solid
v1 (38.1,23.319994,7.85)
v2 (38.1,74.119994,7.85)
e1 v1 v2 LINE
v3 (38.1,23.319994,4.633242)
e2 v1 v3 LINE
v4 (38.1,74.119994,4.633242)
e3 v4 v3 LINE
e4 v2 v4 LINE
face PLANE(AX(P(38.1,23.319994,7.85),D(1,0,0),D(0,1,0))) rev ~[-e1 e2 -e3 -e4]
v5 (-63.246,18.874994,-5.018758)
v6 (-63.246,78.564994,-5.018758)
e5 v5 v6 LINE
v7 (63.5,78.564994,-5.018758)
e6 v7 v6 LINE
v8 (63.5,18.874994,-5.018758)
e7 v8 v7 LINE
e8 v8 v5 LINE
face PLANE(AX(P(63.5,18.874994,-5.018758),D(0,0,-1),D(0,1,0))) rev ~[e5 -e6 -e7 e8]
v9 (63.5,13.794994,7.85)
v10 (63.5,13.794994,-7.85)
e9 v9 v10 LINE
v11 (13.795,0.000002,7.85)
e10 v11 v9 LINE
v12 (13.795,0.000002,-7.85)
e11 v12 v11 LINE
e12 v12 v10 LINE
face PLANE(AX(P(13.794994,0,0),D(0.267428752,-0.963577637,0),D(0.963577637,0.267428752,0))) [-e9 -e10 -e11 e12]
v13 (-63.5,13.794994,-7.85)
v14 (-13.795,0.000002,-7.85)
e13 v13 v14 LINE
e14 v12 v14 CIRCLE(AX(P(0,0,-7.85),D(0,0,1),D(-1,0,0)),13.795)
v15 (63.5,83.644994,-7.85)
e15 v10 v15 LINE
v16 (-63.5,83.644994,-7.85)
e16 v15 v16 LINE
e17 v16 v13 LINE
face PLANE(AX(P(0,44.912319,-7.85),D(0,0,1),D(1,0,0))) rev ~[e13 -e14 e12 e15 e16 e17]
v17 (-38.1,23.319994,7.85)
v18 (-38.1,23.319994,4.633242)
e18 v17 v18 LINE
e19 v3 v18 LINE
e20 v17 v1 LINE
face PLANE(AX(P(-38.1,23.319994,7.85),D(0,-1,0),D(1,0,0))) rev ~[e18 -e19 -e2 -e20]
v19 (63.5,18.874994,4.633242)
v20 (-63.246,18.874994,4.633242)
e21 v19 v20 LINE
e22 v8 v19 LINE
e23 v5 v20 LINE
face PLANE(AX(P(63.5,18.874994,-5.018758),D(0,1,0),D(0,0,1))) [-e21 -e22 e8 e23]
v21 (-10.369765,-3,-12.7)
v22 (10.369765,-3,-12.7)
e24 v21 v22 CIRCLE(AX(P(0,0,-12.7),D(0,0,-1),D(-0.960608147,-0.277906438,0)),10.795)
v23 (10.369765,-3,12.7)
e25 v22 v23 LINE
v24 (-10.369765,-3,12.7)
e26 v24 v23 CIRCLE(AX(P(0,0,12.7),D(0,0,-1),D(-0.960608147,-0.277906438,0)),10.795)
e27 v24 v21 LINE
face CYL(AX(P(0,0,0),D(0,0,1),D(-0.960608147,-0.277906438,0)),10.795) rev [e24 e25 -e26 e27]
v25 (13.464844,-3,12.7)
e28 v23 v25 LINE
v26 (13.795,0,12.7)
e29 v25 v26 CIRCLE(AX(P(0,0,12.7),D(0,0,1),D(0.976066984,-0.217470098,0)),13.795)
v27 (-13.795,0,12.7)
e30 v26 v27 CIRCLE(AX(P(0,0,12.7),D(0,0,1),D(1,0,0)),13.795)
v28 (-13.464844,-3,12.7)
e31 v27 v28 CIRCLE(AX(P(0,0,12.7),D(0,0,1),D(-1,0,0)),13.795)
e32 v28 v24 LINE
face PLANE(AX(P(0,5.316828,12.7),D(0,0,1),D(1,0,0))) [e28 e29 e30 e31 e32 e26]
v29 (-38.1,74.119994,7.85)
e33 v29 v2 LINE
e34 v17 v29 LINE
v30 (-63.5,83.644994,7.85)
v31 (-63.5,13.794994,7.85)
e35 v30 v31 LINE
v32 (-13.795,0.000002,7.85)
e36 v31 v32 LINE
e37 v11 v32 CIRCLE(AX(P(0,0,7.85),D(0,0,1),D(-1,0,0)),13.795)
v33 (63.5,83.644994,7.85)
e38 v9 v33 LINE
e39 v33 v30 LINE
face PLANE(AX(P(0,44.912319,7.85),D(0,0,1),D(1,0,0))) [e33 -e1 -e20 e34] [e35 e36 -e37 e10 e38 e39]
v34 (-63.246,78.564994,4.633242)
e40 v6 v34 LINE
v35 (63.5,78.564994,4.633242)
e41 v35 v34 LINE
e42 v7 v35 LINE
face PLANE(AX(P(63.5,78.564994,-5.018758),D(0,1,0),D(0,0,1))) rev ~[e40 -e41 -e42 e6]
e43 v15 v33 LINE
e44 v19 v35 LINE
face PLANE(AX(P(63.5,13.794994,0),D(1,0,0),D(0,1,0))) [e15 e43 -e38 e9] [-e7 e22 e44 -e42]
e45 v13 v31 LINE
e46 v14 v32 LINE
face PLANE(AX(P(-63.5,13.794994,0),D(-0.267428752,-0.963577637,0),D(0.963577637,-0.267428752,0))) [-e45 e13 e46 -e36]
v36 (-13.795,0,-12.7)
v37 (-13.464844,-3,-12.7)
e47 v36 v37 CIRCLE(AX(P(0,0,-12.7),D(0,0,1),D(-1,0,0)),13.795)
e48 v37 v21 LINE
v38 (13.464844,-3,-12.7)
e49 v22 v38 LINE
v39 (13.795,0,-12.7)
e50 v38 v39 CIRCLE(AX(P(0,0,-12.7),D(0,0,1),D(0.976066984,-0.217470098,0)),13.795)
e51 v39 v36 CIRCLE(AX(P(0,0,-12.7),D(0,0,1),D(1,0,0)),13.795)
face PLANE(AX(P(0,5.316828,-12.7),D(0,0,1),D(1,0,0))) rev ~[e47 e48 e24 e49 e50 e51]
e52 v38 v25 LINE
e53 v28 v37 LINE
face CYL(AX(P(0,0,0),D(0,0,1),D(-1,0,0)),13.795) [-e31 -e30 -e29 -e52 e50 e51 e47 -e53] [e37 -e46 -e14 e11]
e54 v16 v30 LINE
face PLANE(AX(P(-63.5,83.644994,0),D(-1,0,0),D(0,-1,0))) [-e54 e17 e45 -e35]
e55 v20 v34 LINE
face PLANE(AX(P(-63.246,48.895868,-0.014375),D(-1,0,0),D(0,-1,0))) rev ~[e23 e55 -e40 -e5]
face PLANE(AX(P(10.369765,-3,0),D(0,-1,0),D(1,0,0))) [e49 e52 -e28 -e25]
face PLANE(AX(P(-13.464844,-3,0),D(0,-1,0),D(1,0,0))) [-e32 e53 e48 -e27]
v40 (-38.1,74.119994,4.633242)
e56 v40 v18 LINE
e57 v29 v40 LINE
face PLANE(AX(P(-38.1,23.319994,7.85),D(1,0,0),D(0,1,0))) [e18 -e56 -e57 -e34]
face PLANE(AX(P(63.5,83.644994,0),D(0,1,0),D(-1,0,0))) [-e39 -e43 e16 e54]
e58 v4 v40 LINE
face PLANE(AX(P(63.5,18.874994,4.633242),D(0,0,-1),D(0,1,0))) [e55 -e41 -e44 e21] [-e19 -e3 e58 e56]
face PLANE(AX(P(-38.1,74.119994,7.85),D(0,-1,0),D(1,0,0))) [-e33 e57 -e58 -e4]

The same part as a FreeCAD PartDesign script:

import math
import FreeCAD as App
import Part
import Sketcher
from FreeCAD import Vector
Q = App.Units.Quantity


def add_polygon(sketch, points):
    """Adds a closed chain of lines whose ends are joined by coincident constraints."""
    first, n = sketch.GeometryCount, len(points)
    for a, b in zip(points, points[1:] + points[:1]):
        sketch.addGeometry(Part.LineSegment(App.Vector(*a, 0), App.Vector(*b, 0)), False)
    for i in range(n):
        sketch.addConstraint(Sketcher.Constraint("Coincident", first + i, 2, first + (i + 1) % n, 1))

doc = App.newDocument("Part")
body = doc.addObject("PartDesign::Body", "Body")

sketch1 = doc.addObject("Sketcher::SketchObject", "Sketch")
body.addObject(sketch1)
sketch1.AttachmentSupport = (doc.XY_Plane, [""])
sketch1.MapMode = "FlatFace"
sketch1.addGeometry([
    Part.ArcOfCircle(Part.Circle(Vector(0, 0, 0), Vector(0, 0, 1), 10.8), math.radians(-16), math.radians(196)),
    Part.LineSegment(Vector(10.4, -3, 0), Vector(13.5, -3, 0)),
    Part.ArcOfCircle(Part.Circle(Vector(0, 0, 0), Vector(0, 0, 1), 13.8), math.radians(-12.56), math.radians(0)),
    Part.ArcOfCircle(Part.Circle(Vector(0, 0, 0), Vector(0, 0, 1), 13.8), math.radians(0), math.radians(180)),
    Part.ArcOfCircle(Part.Circle(Vector(0, 0, 0), Vector(0, 0, 1), 13.8), math.radians(180), math.radians(192.56)),
    Part.LineSegment(Vector(-13.5, -3, 0), Vector(-10.4, -3, 0)),
], False)
sketch1.addConstraint([
    Sketcher.Constraint("Coincident", 0, 1, 1, 1),
    Sketcher.Constraint("Coincident", 1, 2, 2, 1),
    Sketcher.Constraint("Tangent", 2, 2, 3, 1),
    Sketcher.Constraint("Tangent", 3, 2, 4, 1),
    Sketcher.Constraint("Coincident", 4, 2, 5, 1),
    Sketcher.Constraint("Coincident", 5, 2, 0, 2),
    Sketcher.Constraint("Horizontal", 1),
    Sketcher.Constraint("Horizontal", 5),
    Sketcher.Constraint("Coincident", 0, 3, -1, 1),
    Sketcher.Constraint("Coincident", 2, 3, -1, 1),
    Sketcher.Constraint("Equal", 2, 3),
    Sketcher.Constraint("Equal", 3, 4),
    Sketcher.Constraint("PointOnObject", 2, 2, -1),
    Sketcher.Constraint("PointOnObject", 3, 2, -1),
    Sketcher.Constraint("Horizontal", 1, 2, 4, 2),
    Sketcher.Constraint("Radius", 0, Q("0.425 in")),
    Sketcher.Constraint("Radius", 2, Q("13.795 mm")),
    Sketcher.Constraint("DistanceX", 1, 1, 1, 2, Q("3.095079 mm")),
])
pad1 = doc.addObject("PartDesign::Pad", "Pad")
body.addObject(pad1)
pad1.Profile = sketch1
pad1.Length = Q("1 in")
pad1.Midplane = True

sketch2 = doc.addObject("Sketcher::SketchObject", "Sketch001")
body.addObject(sketch2)
sketch2.AttachmentSupport = (doc.XY_Plane, [""])
sketch2.MapMode = "FlatFace"
sketch2.addGeometry([
    Part.LineSegment(Vector(64, 14, 0), Vector(64, 84, 0)),
    Part.LineSegment(Vector(64, 84, 0), Vector(-64, 84, 0)),
    Part.LineSegment(Vector(-64, 84, 0), Vector(-64, 14, 0)),
    Part.LineSegment(Vector(-64, 14, 0), Vector(-14, 0, 0)),
    Part.ArcOfCircle(Part.Circle(Vector(0, 0, 0), Vector(0, 0, 1), 14), math.radians(0), math.radians(180)),
    Part.LineSegment(Vector(14, 0, 0), Vector(64, 14, 0)),
], False)
sketch2.addConstraint([
    Sketcher.Constraint("Coincident", 0, 2, 1, 1),
    Sketcher.Constraint("Coincident", 1, 2, 2, 1),
    Sketcher.Constraint("Coincident", 2, 2, 3, 1),
    Sketcher.Constraint("Coincident", 3, 2, 4, 2),
    Sketcher.Constraint("Coincident", 4, 1, 5, 1),
    Sketcher.Constraint("Coincident", 5, 2, 0, 1),
    Sketcher.Constraint("Vertical", 0),
    Sketcher.Constraint("Horizontal", 1),
    Sketcher.Constraint("Vertical", 2),
    Sketcher.Constraint("Coincident", 4, 3, -1, 1),
    Sketcher.Constraint("Symmetric", 2, 2, 5, 2, -2),
    Sketcher.Constraint("PointOnObject", 3, 2, -1),
    Sketcher.Constraint("PointOnObject", 4, 1, -1),
    Sketcher.Constraint("DistanceX", 1, 2, 1, 1, Q("5 in")),
    Sketcher.Constraint("DistanceY", 0, 1, 0, 2, Q("2.75 in")),
    Sketcher.Constraint("Radius", 4, Q("13.794994 mm")),
    Sketcher.Constraint("Distance", 3, Q("51.58381 mm")),
])
pad2 = doc.addObject("PartDesign::Pad", "Pad001")
body.addObject(pad2)
pad2.Profile = sketch2
pad2.Length = 15.7
pad2.Midplane = True

sketch3 = doc.addObject("Sketcher::SketchObject", "Sketch002")
body.addObject(sketch3)
sketch3.AttachmentSupport = (doc.YZ_Plane, [""])
sketch3.MapMode = "FlatFace"
sketch3.AttachmentOffset = App.Placement(Vector(0, 0, 2.5 * 25.4), App.Rotation())
add_polygon(sketch3, [(19, 5), (19, -5), (79, -5), (79, 5)])
sketch3.addConstraint([
    Sketcher.Constraint("Vertical", 0),
    Sketcher.Constraint("Horizontal", 1),
    Sketcher.Constraint("Vertical", 2),
    Sketcher.Constraint("Horizontal", 3),
    Sketcher.Constraint("DistanceX", 1, 1, 1, 2, Q("2.35 in")),
    Sketcher.Constraint("DistanceY", 0, 2, 0, 1, Q("0.38 in")),
    Sketcher.Constraint("DistanceX", -1, 1, 0, 2, Q("18.874994 mm")),
    Sketcher.Constraint("DistanceY", 0, 2, -1, 1, Q("5.018758 mm")),
])
pocket1 = doc.addObject("PartDesign::Pocket", "Pocket")
body.addObject(pocket1)
pocket1.Profile = sketch3
pocket1.Type = "ThroughAll"

sketch4 = doc.addObject("Sketcher::SketchObject", "Sketch003")
body.addObject(sketch4)
sketch4.AttachmentSupport = (doc.XY_Plane, [""])
sketch4.MapMode = "FlatFace"
sketch4.AttachmentOffset = App.Placement(Vector(0, 0, 7.85), App.Rotation())
add_polygon(sketch4, [(-38, 74), (-38, 23), (38, 23), (38, 74)])
sketch4.addConstraint([
    Sketcher.Constraint("Vertical", 0),
    Sketcher.Constraint("Horizontal", 1),
    Sketcher.Constraint("Vertical", 2),
    Sketcher.Constraint("Horizontal", 3),
    Sketcher.Constraint("DistanceX", 1, 1, 1, 2, Q("3 in")),
    Sketcher.Constraint("DistanceY", 0, 2, 0, 1, Q("2 in")),
    Sketcher.Constraint("DistanceX", 0, 2, -1, 1, Q("1.5 in")),
    Sketcher.Constraint("DistanceY", -1, 1, 0, 2, Q("23.319994 mm")),
])
pocket2 = doc.addObject("PartDesign::Pocket", "Pocket001")
body.addObject(pocket2)
pocket2.Profile = sketch4
pocket2.Length = Q("0.2 in")

sketch5 = doc.addObject("Sketcher::SketchObject", "Sketch004")
body.addObject(sketch5)
sketch5.AttachmentSupport = (doc.YZ_Plane, [""])
sketch5.MapMode = "FlatFace"
sketch5.AttachmentOffset = App.Placement(Vector(0, 0, -2.5 * 25.4), App.Rotation())
add_polygon(sketch5, [(80, 6), (80, -6), (18, -6), (18, 6)])
sketch5.addConstraint([
    Sketcher.Constraint("Vertical", 0),
    Sketcher.Constraint("Horizontal", 1),
    Sketcher.Constraint("Vertical", 2),
    Sketcher.Constraint("Horizontal", 3),
    Sketcher.Constraint("DistanceY", 0, 2, 0, 1, Q("11.142681 mm")),
    Sketcher.Constraint("DistanceX", 1, 2, 1, 1, Q("62.413093 mm")),
    Sketcher.Constraint("DistanceX", -1, 1, 1, 2, Q("17.689321 mm")),
    Sketcher.Constraint("DistanceY", 0, 2, -1, 1, Q("5.585716 mm")),
])
pad3 = doc.addObject("PartDesign::Pad", "Pad002")
body.addObject(pad3)
pad3.Profile = sketch5
pad3.Length = Q("0.01 in")

doc.recompute()
